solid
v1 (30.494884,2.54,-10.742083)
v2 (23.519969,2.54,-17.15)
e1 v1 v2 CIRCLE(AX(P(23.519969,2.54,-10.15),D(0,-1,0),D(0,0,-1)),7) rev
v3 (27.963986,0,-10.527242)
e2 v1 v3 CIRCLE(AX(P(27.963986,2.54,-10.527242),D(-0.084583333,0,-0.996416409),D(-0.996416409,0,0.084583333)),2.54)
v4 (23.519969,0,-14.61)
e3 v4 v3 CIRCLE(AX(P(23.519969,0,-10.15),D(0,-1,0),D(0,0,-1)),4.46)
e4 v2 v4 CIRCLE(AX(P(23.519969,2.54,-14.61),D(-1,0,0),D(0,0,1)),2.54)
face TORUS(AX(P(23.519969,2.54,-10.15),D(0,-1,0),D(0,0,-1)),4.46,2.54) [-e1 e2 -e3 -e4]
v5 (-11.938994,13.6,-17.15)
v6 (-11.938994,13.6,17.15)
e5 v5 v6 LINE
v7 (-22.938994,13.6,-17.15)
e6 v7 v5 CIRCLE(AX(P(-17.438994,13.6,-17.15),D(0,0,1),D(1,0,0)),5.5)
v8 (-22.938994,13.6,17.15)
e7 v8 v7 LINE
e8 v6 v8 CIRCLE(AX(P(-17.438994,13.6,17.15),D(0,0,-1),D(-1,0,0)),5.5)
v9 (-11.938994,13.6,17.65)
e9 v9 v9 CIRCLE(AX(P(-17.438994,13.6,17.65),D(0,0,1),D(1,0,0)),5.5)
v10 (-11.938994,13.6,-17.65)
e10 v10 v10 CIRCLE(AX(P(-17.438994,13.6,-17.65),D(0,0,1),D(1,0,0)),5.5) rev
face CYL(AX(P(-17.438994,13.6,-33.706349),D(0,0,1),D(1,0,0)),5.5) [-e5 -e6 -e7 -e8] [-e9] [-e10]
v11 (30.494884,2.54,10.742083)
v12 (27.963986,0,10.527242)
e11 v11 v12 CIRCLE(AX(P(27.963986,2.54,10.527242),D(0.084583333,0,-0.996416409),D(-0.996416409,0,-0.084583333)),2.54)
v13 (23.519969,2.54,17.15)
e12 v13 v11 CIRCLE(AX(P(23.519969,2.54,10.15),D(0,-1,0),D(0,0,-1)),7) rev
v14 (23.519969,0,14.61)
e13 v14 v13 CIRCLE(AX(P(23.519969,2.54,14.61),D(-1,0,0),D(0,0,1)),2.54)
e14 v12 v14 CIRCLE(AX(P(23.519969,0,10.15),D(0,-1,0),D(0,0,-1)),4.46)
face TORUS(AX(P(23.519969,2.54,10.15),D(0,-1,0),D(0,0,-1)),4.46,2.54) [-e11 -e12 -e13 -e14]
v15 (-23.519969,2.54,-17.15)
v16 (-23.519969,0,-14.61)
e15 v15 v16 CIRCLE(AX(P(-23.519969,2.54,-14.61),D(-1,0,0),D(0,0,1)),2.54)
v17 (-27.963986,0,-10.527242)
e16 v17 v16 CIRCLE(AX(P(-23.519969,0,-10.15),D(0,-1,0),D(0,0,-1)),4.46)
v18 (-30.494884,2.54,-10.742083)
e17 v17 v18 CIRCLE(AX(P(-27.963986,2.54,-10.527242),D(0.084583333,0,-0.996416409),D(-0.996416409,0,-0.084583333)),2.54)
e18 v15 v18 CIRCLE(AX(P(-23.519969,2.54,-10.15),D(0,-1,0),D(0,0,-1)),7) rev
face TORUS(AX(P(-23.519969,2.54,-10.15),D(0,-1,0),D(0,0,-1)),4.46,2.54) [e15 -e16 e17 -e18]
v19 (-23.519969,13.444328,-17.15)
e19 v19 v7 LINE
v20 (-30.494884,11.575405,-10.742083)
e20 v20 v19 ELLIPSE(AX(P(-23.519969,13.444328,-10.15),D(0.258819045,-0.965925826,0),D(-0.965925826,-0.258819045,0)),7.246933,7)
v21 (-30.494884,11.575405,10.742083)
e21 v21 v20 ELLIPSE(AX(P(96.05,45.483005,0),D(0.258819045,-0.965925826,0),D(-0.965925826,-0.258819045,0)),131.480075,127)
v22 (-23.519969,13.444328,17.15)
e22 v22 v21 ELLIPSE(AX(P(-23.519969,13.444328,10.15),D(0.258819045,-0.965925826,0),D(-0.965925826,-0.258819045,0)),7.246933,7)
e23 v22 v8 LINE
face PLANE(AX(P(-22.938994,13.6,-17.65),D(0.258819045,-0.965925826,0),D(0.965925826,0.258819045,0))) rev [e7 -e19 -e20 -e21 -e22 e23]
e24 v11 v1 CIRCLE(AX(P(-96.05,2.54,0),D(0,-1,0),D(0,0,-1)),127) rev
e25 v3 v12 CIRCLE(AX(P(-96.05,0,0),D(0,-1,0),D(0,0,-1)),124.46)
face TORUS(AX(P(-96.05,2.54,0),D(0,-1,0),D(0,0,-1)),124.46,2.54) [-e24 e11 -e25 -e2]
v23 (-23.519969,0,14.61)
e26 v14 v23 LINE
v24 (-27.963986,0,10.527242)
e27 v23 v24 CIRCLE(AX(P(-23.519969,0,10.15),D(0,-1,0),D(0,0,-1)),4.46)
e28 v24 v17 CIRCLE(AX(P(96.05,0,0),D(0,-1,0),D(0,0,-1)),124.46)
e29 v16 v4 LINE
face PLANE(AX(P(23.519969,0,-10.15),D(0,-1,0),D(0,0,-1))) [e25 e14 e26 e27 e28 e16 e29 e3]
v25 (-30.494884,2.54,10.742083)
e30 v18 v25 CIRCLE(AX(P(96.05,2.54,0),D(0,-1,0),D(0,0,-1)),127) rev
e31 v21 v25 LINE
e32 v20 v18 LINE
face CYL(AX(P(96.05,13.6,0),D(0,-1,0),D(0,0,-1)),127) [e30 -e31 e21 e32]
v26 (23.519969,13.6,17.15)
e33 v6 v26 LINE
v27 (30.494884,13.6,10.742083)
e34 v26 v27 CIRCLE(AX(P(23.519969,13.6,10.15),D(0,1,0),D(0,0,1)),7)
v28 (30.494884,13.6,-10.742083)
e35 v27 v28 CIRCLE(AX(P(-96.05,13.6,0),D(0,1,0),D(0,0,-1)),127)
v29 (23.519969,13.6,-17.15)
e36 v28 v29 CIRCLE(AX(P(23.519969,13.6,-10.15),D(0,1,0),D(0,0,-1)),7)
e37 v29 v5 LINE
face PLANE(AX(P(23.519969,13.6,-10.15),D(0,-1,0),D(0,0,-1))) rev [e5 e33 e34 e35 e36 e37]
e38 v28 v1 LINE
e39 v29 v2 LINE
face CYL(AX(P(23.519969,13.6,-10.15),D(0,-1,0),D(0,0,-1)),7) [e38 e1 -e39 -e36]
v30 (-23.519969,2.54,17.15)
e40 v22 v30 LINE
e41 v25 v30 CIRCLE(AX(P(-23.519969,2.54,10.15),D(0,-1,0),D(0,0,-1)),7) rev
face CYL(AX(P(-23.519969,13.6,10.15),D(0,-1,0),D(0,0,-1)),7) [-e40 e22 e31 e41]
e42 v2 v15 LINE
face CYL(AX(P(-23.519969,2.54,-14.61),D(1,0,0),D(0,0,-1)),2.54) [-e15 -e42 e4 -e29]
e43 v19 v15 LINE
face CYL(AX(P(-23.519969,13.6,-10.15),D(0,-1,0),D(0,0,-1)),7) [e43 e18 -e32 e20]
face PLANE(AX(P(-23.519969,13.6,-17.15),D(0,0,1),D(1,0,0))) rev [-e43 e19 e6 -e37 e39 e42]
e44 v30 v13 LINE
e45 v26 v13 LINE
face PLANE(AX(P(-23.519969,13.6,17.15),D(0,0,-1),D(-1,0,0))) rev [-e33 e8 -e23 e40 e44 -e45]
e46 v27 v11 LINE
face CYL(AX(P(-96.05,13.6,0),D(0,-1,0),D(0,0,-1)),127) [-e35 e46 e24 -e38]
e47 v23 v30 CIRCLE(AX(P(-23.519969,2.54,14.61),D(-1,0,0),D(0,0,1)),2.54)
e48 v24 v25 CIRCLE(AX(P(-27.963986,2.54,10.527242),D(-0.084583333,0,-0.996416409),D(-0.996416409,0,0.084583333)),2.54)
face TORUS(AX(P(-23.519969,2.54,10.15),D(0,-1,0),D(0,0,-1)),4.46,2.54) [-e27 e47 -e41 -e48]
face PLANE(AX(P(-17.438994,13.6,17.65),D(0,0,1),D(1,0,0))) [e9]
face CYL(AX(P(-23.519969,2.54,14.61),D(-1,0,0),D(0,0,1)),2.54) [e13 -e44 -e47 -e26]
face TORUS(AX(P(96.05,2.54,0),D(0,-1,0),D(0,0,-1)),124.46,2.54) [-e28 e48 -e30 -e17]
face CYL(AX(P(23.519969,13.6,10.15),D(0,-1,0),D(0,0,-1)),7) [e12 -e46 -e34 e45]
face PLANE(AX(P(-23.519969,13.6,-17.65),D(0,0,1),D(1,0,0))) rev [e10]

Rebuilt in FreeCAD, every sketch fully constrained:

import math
import FreeCAD as App
import Part
import Sketcher
from FreeCAD import Vector
Q = App.Units.Quantity


def edges_at(feature, points):
    """Names of the edges that pass closest to the given points."""
    edges = feature.Shape.Edges
    near = lambda p: min(range(len(edges)), key=lambda i: edges[i].distToShape(Part.Vertex(*p))[0])
    return sorted({f"Edge{near(p) + 1}" for p in points})

doc = App.newDocument("Part")
params = doc.addObject("Spreadsheet::Sheet", "Params")
for row, (alias, value) in enumerate([
    ("sketch1_radius", "7 mm"),
    ("sketch1_radius2", "127 mm"),
    ("pad1_length", "13.6 mm"),
    ("fillet_radius", "2.54 mm"),
    ("sketch2_diameter", "11 mm"),
    ("pad2_length", "0.5 mm"),
    ("pad2_length2", "34.8 mm"),
], start=1):
    params.set(f"A{row}", alias)
    params.set(f"B{row}", "=" + value)
    params.setAlias(f"B{row}", alias)

body = doc.addObject("PartDesign::Body", "Body")

# Sketch on XZ plane
sketch1 = doc.addObject("Sketcher::SketchObject", "Sketch")
body.addObject(sketch1)
sketch1.AttachmentSupport = (doc.XZ_Plane, [""])
sketch1.MapMode = "FlatFace"
sketch1.addGeometry([
    Part.LineSegment(Vector(24, -17, 0), Vector(-24, -17, 0)),  # 0
    Part.ArcOfCircle(Part.Circle(Vector(-24, -10, 0), Vector(0, 0, 1), 7), math.radians(-175), math.radians(-90)),  # 1
    Part.ArcOfCircle(Part.Circle(Vector(96, 0, 0), Vector(0, 0, 1), 127), math.radians(175.15), math.radians(184.85)),  # 2
    Part.ArcOfCircle(Part.Circle(Vector(-24, 10, 0), Vector(0, 0, 1), 7), math.radians(90), math.radians(175)),  # 3
    Part.LineSegment(Vector(-24, 17, 0), Vector(24, 17, 0)),  # 4
    Part.ArcOfCircle(Part.Circle(Vector(24, 10, 0), Vector(0, 0, 1), 7), math.radians(5), math.radians(90)),  # 5
    Part.ArcOfCircle(Part.Circle(Vector(-96, 0, 0), Vector(0, 0, 1), 127), math.radians(-4.85), math.radians(4.85)),  # 6
    Part.ArcOfCircle(Part.Circle(Vector(24, -10, 0), Vector(0, 0, 1), 7), math.radians(-90), math.radians(-5)),  # 7
], False)
sketch1.addConstraint([
    Sketcher.Constraint("Tangent", 0, 2, 1, 2),
    Sketcher.Constraint("Tangent", 1, 1, 2, 2),
    Sketcher.Constraint("Tangent", 2, 1, 3, 2),
    Sketcher.Constraint("Tangent", 3, 1, 4, 1),
    Sketcher.Constraint("Tangent", 4, 2, 5, 2),
    Sketcher.Constraint("Tangent", 5, 1, 6, 2),
    Sketcher.Constraint("Tangent", 6, 1, 7, 2),
    Sketcher.Constraint("Tangent", 7, 1, 0, 1),
    Sketcher.Constraint("Horizontal", 0),
    Sketcher.Constraint("Horizontal", 4),
    Sketcher.Constraint("Equal", 1, 3),
    Sketcher.Constraint("Equal", 3, 5),
    Sketcher.Constraint("Equal", 2, 6),
    Sketcher.Constraint("Equal", 5, 7),
    Sketcher.Constraint("Symmetric", 1, 3, 5, 3, -1, 1),
    Sketcher.Constraint("Symmetric", 2, 3, 6, 3, -2),
    Sketcher.Constraint("Radius", 1, Q("7 mm")),
    Sketcher.Constraint("Radius", 2, Q("127 mm")),
    Sketcher.Constraint("DistanceY", 1, 3, 3, 3, Q("20.3 mm")),
    Sketcher.Constraint("DistanceX", 6, 3, 2, 3, Q("192.1 mm")),
])
sketch1.setExpression("Constraints[16]", "Params.sketch1_radius")
sketch1.setExpression("Constraints[17]", "Params.sketch1_radius2")
pad1 = doc.addObject("PartDesign::Pad", "Pad")
body.addObject(pad1)
pad1.Profile = sketch1
pad1.setExpression("Length", "Params.pad1_length")
pad1.Reversed = True
doc.recompute()

fillet = doc.addObject("PartDesign::Fillet", "Fillet")
body.addObject(fillet)
fillet.Base = (pad1, edges_at(pad1, [
    (-30.95, 0, 0),
    (-28.256, 0, -15.305),
    (0, 0, -17.15),
    (28.256, 0, -15.305),
    (30.95, 0, 0),
    (28.256, 0, 15.305),
    (0, 0, 17.15),
    (-28.256, 0, 15.305),
]))
fillet.setExpression("Radius", "Params.fillet_radius")

# Sketch on XY plane
sketch2 = doc.addObject("Sketcher::SketchObject", "Sketch001")
body.addObject(sketch2)
sketch2.AttachmentSupport = (doc.XY_Plane, [""])
sketch2.MapMode = "FlatFace"
sketch2.AttachmentOffset = App.Placement(Vector(0, 0, 17.15), App.Rotation())
sketch2.addGeometry(Part.Circle(Vector(-17, 14, 0), Vector(0, 0, 1), 6), False)
sketch2.addConstraint([
    Sketcher.Constraint("Diameter", 0, Q("11 mm")),
    Sketcher.Constraint("DistanceY", -1, 1, 0, 3, Q("13.6 mm")),
    Sketcher.Constraint("DistanceX", 0, 3, -1, 1, Q("17.438994 mm")),
])
sketch2.setExpression("Constraints[0]", "Params.sketch2_diameter")
pad2 = doc.addObject("PartDesign::Pad", "Pad001")
body.addObject(pad2)
pad2.Profile = sketch2
pad2.Type = "TwoLengths"
pad2.setExpression("Length", "Params.pad2_length")
pad2.setExpression("Length2", "Params.pad2_length2")

# Sketch on XY plane
sketch3 = doc.addObject("Sketcher::SketchObject", "Sketch002")
body.addObject(sketch3)
sketch3.AttachmentSupport = (doc.XY_Plane, [""])
sketch3.MapMode = "FlatFace"
sketch3.AttachmentOffset = App.Placement(Vector(0, 0, 17.15), App.Rotation())
sketch3.addGeometry([
    Part.LineSegment(Vector(-30.9, 11.5, 0), Vector(-22.9, 13.6, 0)),
    Part.LineSegment(Vector(-22.9, 13.6, 0), Vector(-30.9, 13.6, 0)),
    Part.LineSegment(Vector(-30.9, 13.6, 0), Vector(-30.9, 11.5, 0)),
], False)
sketch3.addConstraint([
    Sketcher.Constraint("Coincident", 0, 2, 1, 1),
    Sketcher.Constraint("Coincident", 1, 2, 2, 1),
    Sketcher.Constraint("Coincident", 2, 2, 0, 1),
    Sketcher.Constraint("Horizontal", 1),
    Sketcher.Constraint("Vertical", 2),
    Sketcher.Constraint("Angle", 0, Q("15 deg")),
    Sketcher.Constraint("DistanceY", -1, 1, 0, 2, Q("13.6 mm")),
    Sketcher.Constraint("DistanceX", 1, 2, -1, 1, Q("30.95 mm")),
    Sketcher.Constraint("DistanceX", 1, 2, 1, 1, Q("8.011006 mm")),
])
pocket1 = doc.addObject("PartDesign::Pocket", "Pocket")
body.addObject(pocket1)
pocket1.Profile = sketch3
pocket1.Type = "ThroughAll"

doc.recompute()
